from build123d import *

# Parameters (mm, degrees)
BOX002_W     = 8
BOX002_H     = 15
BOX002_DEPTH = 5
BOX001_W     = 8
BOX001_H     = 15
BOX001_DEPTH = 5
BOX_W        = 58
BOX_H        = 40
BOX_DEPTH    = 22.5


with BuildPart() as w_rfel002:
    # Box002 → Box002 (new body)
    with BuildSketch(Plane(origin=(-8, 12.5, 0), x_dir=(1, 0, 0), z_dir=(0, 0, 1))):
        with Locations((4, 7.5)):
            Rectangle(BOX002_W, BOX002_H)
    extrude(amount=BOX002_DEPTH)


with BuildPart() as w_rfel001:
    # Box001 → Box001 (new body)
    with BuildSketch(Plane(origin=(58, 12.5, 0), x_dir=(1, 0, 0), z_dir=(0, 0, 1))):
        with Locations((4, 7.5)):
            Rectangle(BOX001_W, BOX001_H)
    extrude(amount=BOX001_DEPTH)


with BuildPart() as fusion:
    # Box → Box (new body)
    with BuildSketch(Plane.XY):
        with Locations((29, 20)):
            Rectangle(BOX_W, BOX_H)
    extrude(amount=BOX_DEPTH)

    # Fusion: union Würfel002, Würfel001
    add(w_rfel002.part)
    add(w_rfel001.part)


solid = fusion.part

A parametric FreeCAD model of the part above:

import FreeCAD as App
import Part
import Sketcher
from FreeCAD import Vector
Q = App.Units.Quantity


def add_polygon(sketch, points):
    """Adds a closed chain of lines whose ends are joined by coincident constraints."""
    first, n = sketch.GeometryCount, len(points)
    for a, b in zip(points, points[1:] + points[:1]):
        sketch.addGeometry(Part.LineSegment(App.Vector(*a, 0), App.Vector(*b, 0)), False)
    for i in range(n):
        sketch.addConstraint(Sketcher.Constraint("Coincident", first + i, 2, first + (i + 1) % n, 1))

doc = App.newDocument("Part")
body = doc.addObject("PartDesign::Body", "Body")

sketch1 = doc.addObject("Sketcher::SketchObject", "Sketch")
body.addObject(sketch1)
sketch1.AttachmentSupport = (doc.XY_Plane, [""])
sketch1.MapMode = "FlatFace"
add_polygon(sketch1, [(-8, 28), (-8, 12), (0, 12), (0, 28)])
sketch1.addConstraint([
    Sketcher.Constraint("Vertical", 0),
    Sketcher.Constraint("Horizontal", 1),
    Sketcher.Constraint("Vertical", 2),
    Sketcher.Constraint("Horizontal", 3),
    Sketcher.Constraint("PointOnObject", 1, 2, -2),
    Sketcher.Constraint("DistanceX", 1, 1, 1, 2, Q("8 mm")),
    Sketcher.Constraint("DistanceY", 0, 2, 0, 1, Q("15 mm")),
    Sketcher.Constraint("DistanceY", -1, 1, 0, 2, Q("12.5 mm")),
])
pad1 = doc.addObject("PartDesign::Pad", "Pad")
body.addObject(pad1)
pad1.Profile = sketch1
pad1.Length = 5
body2 = doc.addObject("PartDesign::Body", "Body001")

sketch2 = doc.addObject("Sketcher::SketchObject", "Sketch001")
body2.addObject(sketch2)
sketch2.AttachmentSupport = (doc.getObject("XY_Plane001"), [""])
sketch2.MapMode = "FlatFace"
add_polygon(sketch2, [(58, 28), (58, 12), (66, 12), (66, 28)])
sketch2.addConstraint([
    Sketcher.Constraint("Vertical", 0),
    Sketcher.Constraint("Horizontal", 1),
    Sketcher.Constraint("Vertical", 2),
    Sketcher.Constraint("Horizontal", 3),
    Sketcher.Constraint("DistanceX", 1, 1, 1, 2, Q("8 mm")),
    Sketcher.Constraint("DistanceY", 0, 2, 0, 1, Q("15 mm")),
    Sketcher.Constraint("DistanceX", -1, 1, 0, 2, Q("58 mm")),
    Sketcher.Constraint("DistanceY", -1, 1, 0, 2, Q("12.5 mm")),
])
pad2 = doc.addObject("PartDesign::Pad", "Pad001")
body2.addObject(pad2)
pad2.Profile = sketch2
pad2.Length = 5
body3 = doc.addObject("PartDesign::Body", "Body002")

sketch3 = doc.addObject("Sketcher::SketchObject", "Sketch002")
body3.addObject(sketch3)
sketch3.AttachmentSupport = (doc.getObject("XY_Plane002"), [""])
sketch3.MapMode = "FlatFace"
add_polygon(sketch3, [(0, 40), (0, 0), (58, 0), (58, 40)])
sketch3.addConstraint([
    Sketcher.Constraint("Vertical", 0),
    Sketcher.Constraint("Horizontal", 1),
    Sketcher.Constraint("Vertical", 2),
    Sketcher.Constraint("Horizontal", 3),
    Sketcher.Constraint("Coincident", 0, 2, -1, 1),
    Sketcher.Constraint("DistanceX", 1, 1, 1, 2, Q("58 mm")),
    Sketcher.Constraint("DistanceY", 0, 2, 0, 1, Q("40 mm")),
])
pad3 = doc.addObject("PartDesign::Pad", "Pad002")
body3.addObject(pad3)
pad3.Profile = sketch3
pad3.Length = 22.5
doc.recompute()

boolean = doc.addObject("PartDesign::Boolean", "Boolean")
body3.addObject(boolean)
boolean.Type = "Fuse"
boolean.addObjects([body])
doc.recompute()

boolean2 = doc.addObject("PartDesign::Boolean", "Boolean001")
body3.addObject(boolean2)
boolean2.Type = "Fuse"
boolean2.addObjects([body2])

doc.recompute()
